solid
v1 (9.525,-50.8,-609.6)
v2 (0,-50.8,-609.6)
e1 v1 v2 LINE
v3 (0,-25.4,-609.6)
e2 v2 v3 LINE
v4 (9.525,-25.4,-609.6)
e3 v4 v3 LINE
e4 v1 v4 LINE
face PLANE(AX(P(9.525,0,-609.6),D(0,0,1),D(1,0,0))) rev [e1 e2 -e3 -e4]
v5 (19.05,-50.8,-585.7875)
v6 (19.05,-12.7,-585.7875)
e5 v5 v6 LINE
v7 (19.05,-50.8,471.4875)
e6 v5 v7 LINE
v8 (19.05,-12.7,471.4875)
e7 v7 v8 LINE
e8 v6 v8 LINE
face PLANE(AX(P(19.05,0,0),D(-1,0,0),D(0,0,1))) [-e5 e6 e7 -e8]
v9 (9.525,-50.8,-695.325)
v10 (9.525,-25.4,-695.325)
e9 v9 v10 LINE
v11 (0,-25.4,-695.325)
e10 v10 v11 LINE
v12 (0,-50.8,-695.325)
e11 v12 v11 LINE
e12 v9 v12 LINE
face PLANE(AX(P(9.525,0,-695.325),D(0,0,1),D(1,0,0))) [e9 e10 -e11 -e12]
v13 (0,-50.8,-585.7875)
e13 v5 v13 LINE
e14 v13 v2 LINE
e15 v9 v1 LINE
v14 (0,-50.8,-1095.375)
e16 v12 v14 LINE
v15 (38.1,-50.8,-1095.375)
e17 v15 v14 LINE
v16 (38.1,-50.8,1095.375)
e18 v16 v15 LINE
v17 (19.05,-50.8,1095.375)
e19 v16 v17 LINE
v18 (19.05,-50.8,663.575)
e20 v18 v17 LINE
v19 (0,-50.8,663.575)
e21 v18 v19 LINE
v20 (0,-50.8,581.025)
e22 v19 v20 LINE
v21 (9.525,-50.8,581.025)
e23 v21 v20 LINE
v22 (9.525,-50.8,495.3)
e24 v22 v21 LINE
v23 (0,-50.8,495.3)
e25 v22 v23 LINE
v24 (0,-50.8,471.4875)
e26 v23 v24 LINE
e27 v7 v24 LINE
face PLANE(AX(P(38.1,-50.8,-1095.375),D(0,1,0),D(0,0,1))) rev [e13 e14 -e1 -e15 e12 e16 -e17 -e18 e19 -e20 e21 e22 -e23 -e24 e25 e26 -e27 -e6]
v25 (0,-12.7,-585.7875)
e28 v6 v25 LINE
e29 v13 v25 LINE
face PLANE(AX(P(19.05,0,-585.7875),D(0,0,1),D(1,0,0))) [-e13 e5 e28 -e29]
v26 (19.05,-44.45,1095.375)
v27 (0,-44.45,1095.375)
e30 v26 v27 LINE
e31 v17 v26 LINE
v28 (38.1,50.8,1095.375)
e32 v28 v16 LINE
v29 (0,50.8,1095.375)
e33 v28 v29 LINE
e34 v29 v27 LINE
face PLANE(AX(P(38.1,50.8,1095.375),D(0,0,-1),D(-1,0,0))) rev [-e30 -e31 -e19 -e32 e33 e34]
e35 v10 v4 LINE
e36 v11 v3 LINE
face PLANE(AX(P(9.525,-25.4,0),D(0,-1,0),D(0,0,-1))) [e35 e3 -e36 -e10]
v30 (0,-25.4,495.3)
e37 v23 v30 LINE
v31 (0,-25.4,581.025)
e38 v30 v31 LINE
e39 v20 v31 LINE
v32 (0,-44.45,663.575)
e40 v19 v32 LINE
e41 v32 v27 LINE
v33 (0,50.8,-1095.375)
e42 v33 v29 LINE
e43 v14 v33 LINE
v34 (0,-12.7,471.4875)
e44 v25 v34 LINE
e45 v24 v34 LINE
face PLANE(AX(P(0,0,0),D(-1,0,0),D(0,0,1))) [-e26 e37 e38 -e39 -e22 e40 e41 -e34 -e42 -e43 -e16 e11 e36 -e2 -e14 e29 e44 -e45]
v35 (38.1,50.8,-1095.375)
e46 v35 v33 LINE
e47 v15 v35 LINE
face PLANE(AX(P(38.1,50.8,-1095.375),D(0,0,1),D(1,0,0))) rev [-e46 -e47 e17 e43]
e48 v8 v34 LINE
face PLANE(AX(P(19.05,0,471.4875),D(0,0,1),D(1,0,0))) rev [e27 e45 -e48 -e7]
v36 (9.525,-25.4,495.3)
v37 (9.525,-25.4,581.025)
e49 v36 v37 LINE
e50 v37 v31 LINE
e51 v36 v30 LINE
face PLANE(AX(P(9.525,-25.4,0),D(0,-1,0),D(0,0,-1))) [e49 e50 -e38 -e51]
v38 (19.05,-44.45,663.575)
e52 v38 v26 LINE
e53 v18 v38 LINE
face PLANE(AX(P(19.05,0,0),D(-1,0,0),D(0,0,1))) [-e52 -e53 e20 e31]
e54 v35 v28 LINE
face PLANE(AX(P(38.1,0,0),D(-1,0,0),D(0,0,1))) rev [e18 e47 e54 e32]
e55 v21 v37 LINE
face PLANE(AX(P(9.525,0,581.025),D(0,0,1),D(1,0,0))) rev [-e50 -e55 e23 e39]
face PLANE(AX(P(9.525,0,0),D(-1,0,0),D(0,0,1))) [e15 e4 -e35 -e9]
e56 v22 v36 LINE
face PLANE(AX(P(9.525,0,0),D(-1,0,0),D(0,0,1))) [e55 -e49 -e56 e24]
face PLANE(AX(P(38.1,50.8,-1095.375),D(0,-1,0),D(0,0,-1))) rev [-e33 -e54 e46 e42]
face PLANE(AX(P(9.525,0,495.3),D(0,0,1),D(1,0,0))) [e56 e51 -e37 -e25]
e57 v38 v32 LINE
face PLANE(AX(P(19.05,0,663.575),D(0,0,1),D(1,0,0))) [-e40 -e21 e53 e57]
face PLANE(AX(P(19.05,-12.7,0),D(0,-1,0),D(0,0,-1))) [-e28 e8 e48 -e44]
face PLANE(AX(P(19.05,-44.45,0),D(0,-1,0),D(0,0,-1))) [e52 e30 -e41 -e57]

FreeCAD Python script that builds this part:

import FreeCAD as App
import Part
import Sketcher
Q = App.Units.Quantity

doc = App.newDocument("Part")
params = doc.addObject("Spreadsheet::Sheet", "Params")
for row, (alias, value) in enumerate([
    ("sketch1_width", "4 in"),
    ("sketch1_height", "86.25 in"),
    ("pad1_length", "1.5 in"),
    ("sketch2_height", "17 in"),
    ("sketch2_width", "1.5 in"),
    ("sketch2_width2", "0.25 in"),
    ("sketch2_height2", "41.625 in"),
    ("pocket1_length", "0.75 in"),
    ("sketch3_width", "1 in"),
    ("sketch3_height", "3.375 in"),
    ("pocket2_length", "0.375 in"),
], start=1):
    params.set(f"A{row}", alias)
    params.set(f"B{row}", "=" + value)
    params.setAlias(f"B{row}", alias)

body = doc.addObject("PartDesign::Body", "Body")

# Sketch on YZ plane
sketch1 = body.newObject("Sketcher::SketchObject", "Sketch")
sketch1.AttachmentSupport = (doc.getObject("YZ_Plane"), [""])
sketch1.MapMode = "FlatFace"
sketch1.addGeometry([
    Part.LineSegment(App.Vector(50.8, 1095.375, 0), App.Vector(-50.8, 1095.375, 0)),
    Part.LineSegment(App.Vector(-50.8, 1095.375, 0), App.Vector(-50.8, -1095.375, 0)),
    Part.LineSegment(App.Vector(-50.8, -1095.375, 0), App.Vector(50.8, -1095.375, 0)),
    Part.LineSegment(App.Vector(50.8, -1095.375, 0), App.Vector(50.8, 1095.375, 0)),
], False)
sketch1.addConstraint([
    Sketcher.Constraint("Coincident", 0, 2, 1, 1),
    Sketcher.Constraint("Coincident", 1, 2, 2, 1),
    Sketcher.Constraint("Coincident", 2, 2, 3, 1),
    Sketcher.Constraint("Coincident", 3, 2, 0, 1),
    Sketcher.Constraint("Horizontal", 0),
    Sketcher.Constraint("Vertical", 1),
    Sketcher.Constraint("Horizontal", 2),
    Sketcher.Constraint("Vertical", 3),
    Sketcher.Constraint("Symmetric", 0, 2, 2, 2, -1, 1),
    Sketcher.Constraint("DistanceX", 0, 2, 0, 1, Q("4 in")),
    Sketcher.Constraint("DistanceY", 1, 2, 1, 1, Q("86.25 in")),
])
sketch1.setExpression("Constraints[9]", "Params.sketch1_width")
sketch1.setExpression("Constraints[10]", "Params.sketch1_height")
pad1 = body.newObject("PartDesign::Pad", "Pad")
pad1.Profile = sketch1
pad1.setExpression("Length", "Params.pad1_length")

# Sketch on YZ plane
sketch2 = body.newObject("Sketcher::SketchObject", "Sketch001")
sketch2.AttachmentSupport = (doc.getObject("YZ_Plane"), [""])
sketch2.MapMode = "FlatFace"
sketch2.addGeometry([
    Part.LineSegment(App.Vector(-12.7, -585.7875, 0), App.Vector(-50.8, -585.7875, 0)),  # 0
    Part.LineSegment(App.Vector(-50.8, -585.7875, 0), App.Vector(-50.8, 471.4875, 0)),  # 1
    Part.LineSegment(App.Vector(-50.8, 471.4875, 0), App.Vector(-12.7, 471.4875, 0)),  # 2
    Part.LineSegment(App.Vector(-12.7, 471.4875, 0), App.Vector(-12.7, -585.7875, 0)),  # 3
    Part.LineSegment(App.Vector(-44.45, 663.575, 0), App.Vector(-50.8, 663.575, 0)),  # 4
    Part.LineSegment(App.Vector(-50.8, 663.575, 0), App.Vector(-50.8, 1095.375, 0)),  # 5
    Part.LineSegment(App.Vector(-50.8, 1095.375, 0), App.Vector(-44.45, 1095.375, 0)),  # 6
    Part.LineSegment(App.Vector(-44.45, 1095.375, 0), App.Vector(-44.45, 663.575, 0)),  # 7
], False)
sketch2.addConstraint([
    Sketcher.Constraint("Coincident", 0, 2, 1, 1),
    Sketcher.Constraint("Coincident", 1, 2, 2, 1),
    Sketcher.Constraint("Coincident", 2, 2, 3, 1),
    Sketcher.Constraint("Coincident", 3, 2, 0, 1),
    Sketcher.Constraint("Coincident", 4, 2, 5, 1),
    Sketcher.Constraint("Coincident", 5, 2, 6, 1),
    Sketcher.Constraint("Coincident", 6, 2, 7, 1),
    Sketcher.Constraint("Coincident", 7, 2, 4, 1),
    Sketcher.Constraint("Horizontal", 0),
    Sketcher.Constraint("Vertical", 1),
    Sketcher.Constraint("Horizontal", 2),
    Sketcher.Constraint("Vertical", 3),
    Sketcher.Constraint("Horizontal", 4),
    Sketcher.Constraint("Vertical", 5),
    Sketcher.Constraint("Horizontal", 6),
    Sketcher.Constraint("Vertical", 7),
    Sketcher.Constraint("Vertical", 1, 2, 4, 2),
    Sketcher.Constraint("DistanceY", 5, 1, 5, 2, Q("17 in")),
    Sketcher.Constraint("DistanceX", 0, 2, 0, 1, Q("1.5 in")),
    Sketcher.Constraint("DistanceX", 0, 2, -1, 1, Q("2 in")),
    Sketcher.Constraint("DistanceX", 4, 2, 4, 1, Q("0.25 in")),
    Sketcher.Constraint("DistanceY", 1, 1, 1, 2, Q("41.625 in")),
    Sketcher.Constraint("DistanceY", 0, 2, -1, 1, Q("23.0625 in")),
    Sketcher.Constraint("DistanceY", -1, 1, 4, 2, Q("26.125 in")),
])
sketch2.setExpression("Constraints[17]", "Params.sketch2_height")
sketch2.setExpression("Constraints[18]", "Params.sketch2_width")
sketch2.setExpression("Constraints[20]", "Params.sketch2_width2")
sketch2.setExpression("Constraints[21]", "Params.sketch2_height2")
pocket1 = body.newObject("PartDesign::Pocket", "Pocket")
pocket1.Profile = sketch2
pocket1.setExpression("Length", "Params.pocket1_length")
pocket1.Reversed = True

# Sketch on YZ plane
sketch3 = body.newObject("Sketcher::SketchObject", "Sketch002")
sketch3.AttachmentSupport = (doc.getObject("YZ_Plane"), [""])
sketch3.MapMode = "FlatFace"
sketch3.addGeometry([
    Part.LineSegment(App.Vector(-25.4, 495.3, 0), App.Vector(-50.8, 495.3, 0)),  # 0
    Part.LineSegment(App.Vector(-50.8, 495.3, 0), App.Vector(-50.8, 581.025, 0)),  # 1
    Part.LineSegment(App.Vector(-50.8, 581.025, 0), App.Vector(-25.4, 581.025, 0)),  # 2
    Part.LineSegment(App.Vector(-25.4, 581.025, 0), App.Vector(-25.4, 495.3, 0)),  # 3
    Part.LineSegment(App.Vector(-25.4, -695.325, 0), App.Vector(-50.8, -695.325, 0)),  # 4
    Part.LineSegment(App.Vector(-50.8, -695.325, 0), App.Vector(-50.8, -609.6, 0)),  # 5
    Part.LineSegment(App.Vector(-50.8, -609.6, 0), App.Vector(-25.4, -609.6, 0)),  # 6
    Part.LineSegment(App.Vector(-25.4, -609.6, 0), App.Vector(-25.4, -695.325, 0)),  # 7
], False)
sketch3.addConstraint([
    Sketcher.Constraint("Coincident", 0, 2, 1, 1),
    Sketcher.Constraint("Coincident", 1, 2, 2, 1),
    Sketcher.Constraint("Coincident", 2, 2, 3, 1),
    Sketcher.Constraint("Coincident", 3, 2, 0, 1),
    Sketcher.Constraint("Coincident", 4, 2, 5, 1),
    Sketcher.Constraint("Coincident", 5, 2, 6, 1),
    Sketcher.Constraint("Coincident", 6, 2, 7, 1),
    Sketcher.Constraint("Coincident", 7, 2, 4, 1),
    Sketcher.Constraint("Horizontal", 0),
    Sketcher.Constraint("Vertical", 1),
    Sketcher.Constraint("Horizontal", 2),
    Sketcher.Constraint("Vertical", 3),
    Sketcher.Constraint("Horizontal", 4),
    Sketcher.Constraint("Vertical", 5),
    Sketcher.Constraint("Horizontal", 6),
    Sketcher.Constraint("Vertical", 7),
    Sketcher.Constraint("Vertical", 1, 2, 4, 2),
    Sketcher.Constraint("Vertical", 3, 2, 6, 2),
    Sketcher.Constraint("Equal", 3, 5),
    Sketcher.Constraint("DistanceX", 0, 2, 0, 1, Q("1 in")),
    Sketcher.Constraint("DistanceX", 0, 2, -1, 1, Q("2 in")),
    Sketcher.Constraint("DistanceY", 5, 2, -1, 1, Q("24 in")),
    Sketcher.Constraint("DistanceY", -1, 1, 0, 2, Q("19.5 in")),
    Sketcher.Constraint("DistanceY", 1, 1, 1, 2, Q("3.375 in")),
])
sketch3.setExpression("Constraints[19]", "Params.sketch3_width")
sketch3.setExpression("Constraints[23]", "Params.sketch3_height")
pocket2 = body.newObject("PartDesign::Pocket", "Pocket001")
pocket2.Profile = sketch3
pocket2.setExpression("Length", "Params.pocket2_length")
pocket2.Reversed = True

doc.recompute()
